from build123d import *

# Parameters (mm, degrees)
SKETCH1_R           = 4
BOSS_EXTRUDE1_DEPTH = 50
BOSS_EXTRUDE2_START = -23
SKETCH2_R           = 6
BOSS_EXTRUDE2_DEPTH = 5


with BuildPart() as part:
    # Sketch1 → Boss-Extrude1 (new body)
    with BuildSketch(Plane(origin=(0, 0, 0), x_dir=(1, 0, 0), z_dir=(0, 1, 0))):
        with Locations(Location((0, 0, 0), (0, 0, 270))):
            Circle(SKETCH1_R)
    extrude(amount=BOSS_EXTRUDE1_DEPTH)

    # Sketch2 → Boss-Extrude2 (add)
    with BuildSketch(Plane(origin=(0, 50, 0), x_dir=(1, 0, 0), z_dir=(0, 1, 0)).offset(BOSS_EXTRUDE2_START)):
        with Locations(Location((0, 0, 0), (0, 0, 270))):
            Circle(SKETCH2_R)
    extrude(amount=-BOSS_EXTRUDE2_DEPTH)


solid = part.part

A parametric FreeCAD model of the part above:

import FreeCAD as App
import Part
import Sketcher
from FreeCAD import Vector
Q = App.Units.Quantity

doc = App.newDocument("Part")
body = doc.addObject("PartDesign::Body", "Body")

# Sketch on XZ plane
sketch1 = doc.addObject("Sketcher::SketchObject", "Sketch")
body.addObject(sketch1)
sketch1.AttachmentSupport = (doc.XZ_Plane, [""])
sketch1.MapMode = "FlatFace"
sketch1.addGeometry(Part.Circle(Vector(0, 0, 0), Vector(0, 0, 1), 4), False)
sketch1.addConstraint([
    Sketcher.Constraint("Coincident", 0, 3, -1, 1),
    Sketcher.Constraint("Diameter", 0, Q("8 mm")),
])
pad1 = doc.addObject("PartDesign::Pad", "Pad")
body.addObject(pad1)
pad1.Profile = sketch1
pad1.Length = 50
pad1.Reversed = True

# Sketch on XZ plane
sketch2 = doc.addObject("Sketcher::SketchObject", "Sketch001")
body.addObject(sketch2)
sketch2.AttachmentSupport = (doc.XZ_Plane, [""])
sketch2.MapMode = "FlatFace"
sketch2.AttachmentOffset = App.Placement(Vector(0, 0, -27), App.Rotation())
sketch2.addGeometry(Part.Circle(Vector(0, 0, 0), Vector(0, 0, 1), 6), False)
sketch2.addConstraint([
    Sketcher.Constraint("Coincident", 0, 3, -1, 1),
    Sketcher.Constraint("Diameter", 0, Q("12 mm")),
])
pad2 = doc.addObject("PartDesign::Pad", "Pad001")
body.addObject(pad2)
pad2.Profile = sketch2
pad2.Length = 5

doc.recompute()
